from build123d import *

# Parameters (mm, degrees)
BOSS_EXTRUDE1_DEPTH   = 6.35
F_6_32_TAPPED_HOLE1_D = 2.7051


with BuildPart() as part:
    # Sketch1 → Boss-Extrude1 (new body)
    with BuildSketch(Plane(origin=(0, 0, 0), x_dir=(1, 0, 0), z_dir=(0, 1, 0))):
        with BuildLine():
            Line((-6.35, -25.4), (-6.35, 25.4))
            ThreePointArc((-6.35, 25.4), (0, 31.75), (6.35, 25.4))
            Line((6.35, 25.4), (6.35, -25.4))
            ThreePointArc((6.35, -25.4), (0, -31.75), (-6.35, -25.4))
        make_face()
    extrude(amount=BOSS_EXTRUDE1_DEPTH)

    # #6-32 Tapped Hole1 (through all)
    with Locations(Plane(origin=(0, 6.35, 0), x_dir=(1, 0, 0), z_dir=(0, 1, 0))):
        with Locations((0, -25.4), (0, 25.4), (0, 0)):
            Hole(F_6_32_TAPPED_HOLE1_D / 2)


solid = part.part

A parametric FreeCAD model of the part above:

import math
import FreeCAD as App
import Part
import Sketcher
Q = App.Units.Quantity

doc = App.newDocument("Part")
body = doc.addObject("PartDesign::Body", "Body")

# Sketch on XZ plane
sketch1 = body.newObject("Sketcher::SketchObject", "Sketch")
sketch1.AttachmentSupport = (doc.getObject("XZ_Plane"), [""])
sketch1.MapMode = "FlatFace"
sketch1.addGeometry(Part.LineSegment(App.Vector(-6.35, -25.4, 0), App.Vector(-6.35, 25.4, 0)), False)
sketch1.addGeometry(Part.ArcOfCircle(Part.Circle(App.Vector(0, 25.4, 0), App.Vector(0, 0, 1), 6.35), math.radians(0), math.radians(180)), False)
sketch1.addGeometry(Part.LineSegment(App.Vector(6.35, 25.4, 0), App.Vector(6.35, -25.4, 0)), False)
sketch1.addGeometry(Part.ArcOfCircle(Part.Circle(App.Vector(0, -25.4, 0), App.Vector(0, 0, 1), 6.35), math.radians(180), math.radians(360)), False)
sketch1.addConstraint(Sketcher.Constraint("Tangent", 0, 2, 1, 2))
sketch1.addConstraint(Sketcher.Constraint("Tangent", 1, 1, 2, 1))
sketch1.addConstraint(Sketcher.Constraint("Tangent", 2, 2, 3, 2))
sketch1.addConstraint(Sketcher.Constraint("Tangent", 3, 1, 0, 1))
sketch1.addConstraint(Sketcher.Constraint("Vertical", 0))
sketch1.addConstraint(Sketcher.Constraint("Vertical", 2))
sketch1.addConstraint(Sketcher.Constraint("Symmetric", 1, 3, 3, 3, -1, 1))
sketch1.addConstraint(Sketcher.Constraint("DistanceY", 0, 1, 0, 2, Q("2 in")))
sketch1.addConstraint(Sketcher.Constraint("Radius", 1, Q("0.25 in")))
pad1 = body.newObject("PartDesign::Pad", "Pad")
pad1.Profile = sketch1
pad1.Length = Q("0.25 in")
pad1.Reversed = True

# Sketch on XZ plane
sketch2 = body.newObject("Sketcher::SketchObject", "Sketch001")
sketch2.AttachmentSupport = (doc.getObject("XZ_Plane"), [""])
sketch2.MapMode = "FlatFace"
sketch2.AttachmentOffset = App.Placement(App.Vector(0, 0, -0.25 * 25.4), App.Rotation())
sketch2.addGeometry(Part.Circle(App.Vector(0, 25.4, 0), App.Vector(0, 0, 1), 1.35255), False)
sketch2.addGeometry(Part.Circle(App.Vector(0, -25.4, 0), App.Vector(0, 0, 1), 1.35255), False)
sketch2.addGeometry(Part.Circle(App.Vector(0, 0, 0), App.Vector(0, 0, 1), 1.35255), False)
sketch2.addConstraint(Sketcher.Constraint("Coincident", 2, 3, -1, 1))
sketch2.addConstraint(Sketcher.Constraint("Equal", 0, 1))
sketch2.addConstraint(Sketcher.Constraint("Equal", 1, 2))
sketch2.addConstraint(Sketcher.Constraint("Symmetric", 0, 3, 1, 3, -1, 1))
sketch2.addConstraint(Sketcher.Constraint("PointOnObject", 0, 3, -2))
sketch2.addConstraint(Sketcher.Constraint("DistanceY", -1, 1, 0, 3, Q("1 in")))
sketch2.addConstraint(Sketcher.Constraint("Diameter", 0, Q("0.1065 in")))
doc.recompute()
hole = body.newObject("PartDesign::Hole", "Hole")
hole.Profile = sketch2
hole.ThreadType = "None"
hole.Diameter = Q("0.1065 in")
hole.DepthType = "ThroughAll"
hole.Reversed = True

doc.recompute()
